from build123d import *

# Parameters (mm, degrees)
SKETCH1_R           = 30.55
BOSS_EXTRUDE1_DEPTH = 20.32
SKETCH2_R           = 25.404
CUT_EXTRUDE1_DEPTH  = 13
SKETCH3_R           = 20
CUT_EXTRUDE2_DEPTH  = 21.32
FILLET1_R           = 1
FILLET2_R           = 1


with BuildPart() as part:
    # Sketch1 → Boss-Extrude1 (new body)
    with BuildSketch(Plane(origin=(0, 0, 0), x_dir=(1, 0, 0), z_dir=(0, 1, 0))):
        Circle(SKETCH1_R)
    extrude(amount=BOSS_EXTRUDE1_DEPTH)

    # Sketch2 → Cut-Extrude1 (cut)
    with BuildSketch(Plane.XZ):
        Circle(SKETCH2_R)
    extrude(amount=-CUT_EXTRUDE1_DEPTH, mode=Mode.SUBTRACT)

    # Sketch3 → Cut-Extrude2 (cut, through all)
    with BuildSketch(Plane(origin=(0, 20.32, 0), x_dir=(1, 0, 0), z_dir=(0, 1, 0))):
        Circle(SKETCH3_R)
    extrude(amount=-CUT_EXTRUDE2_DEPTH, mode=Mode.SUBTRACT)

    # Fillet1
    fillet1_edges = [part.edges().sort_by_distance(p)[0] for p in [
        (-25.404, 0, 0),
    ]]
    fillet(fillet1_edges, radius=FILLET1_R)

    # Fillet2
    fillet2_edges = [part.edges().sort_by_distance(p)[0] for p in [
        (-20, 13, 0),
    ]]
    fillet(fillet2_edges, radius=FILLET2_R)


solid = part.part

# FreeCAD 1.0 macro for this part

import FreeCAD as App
import Part
import Sketcher
from FreeCAD import Vector


def edges_at(feature, points):
    """Names of the edges that pass closest to the given points."""
    edges = feature.Shape.Edges
    near = lambda p: min(range(len(edges)), key=lambda i: edges[i].distToShape(Part.Vertex(*p))[0])
    return sorted({f"Edge{near(p) + 1}" for p in points})

doc = App.newDocument("Part")
params = doc.addObject("Spreadsheet::Sheet", "Params")
for row, (alias, value) in enumerate([
    ("sketch1_diameter", "61.1 mm"),
    ("pad1_length", "20.32 mm"),
    ("pocket1_length", "13 mm"),
    ("sketch3_diameter", "40 mm"),
    ("fillet_radius", "1 mm"),
    ("fillet2_radius", "1 mm"),
], start=1):
    params.set(f"A{row}", alias)
    params.set(f"B{row}", "=" + value)
    params.setAlias(f"B{row}", alias)

body = doc.addObject("PartDesign::Body", "Body")

# Sketch on XZ plane
sketch1 = doc.addObject("Sketcher::SketchObject", "Sketch")
body.addObject(sketch1)
sketch1.AttachmentSupport = (doc.XZ_Plane, [""])
sketch1.MapMode = "FlatFace"
sketch1.addGeometry(Part.Circle(Vector(0, 0, 0), Vector(0, 0, 1), 30.55), False)
sketch1.addConstraint([
    Sketcher.Constraint("Coincident", 0, 3, -1, 1),
    Sketcher.Constraint("Diameter", 0, 61.1),
])
sketch1.setExpression("Constraints[1]", "Params.sketch1_diameter")
pad1 = doc.addObject("PartDesign::Pad", "Pad")
body.addObject(pad1)
pad1.Profile = sketch1
pad1.setExpression("Length", "Params.pad1_length")
pad1.Reversed = True

# Sketch on XZ plane
sketch2 = doc.addObject("Sketcher::SketchObject", "Sketch001")
body.addObject(sketch2)
sketch2.AttachmentSupport = (doc.XZ_Plane, [""])
sketch2.MapMode = "FlatFace"
sketch2.addGeometry(Part.Circle(Vector(0, 0, 0), Vector(0, 0, 1), 25.404), False)
sketch2.addConstraint([
    Sketcher.Constraint("Coincident", 0, 3, -1, 1),
    Sketcher.Constraint("Diameter", 0, 50.808),
])
pocket1 = doc.addObject("PartDesign::Pocket", "Pocket")
body.addObject(pocket1)
pocket1.Profile = sketch2
pocket1.setExpression("Length", "Params.pocket1_length")

# Sketch on XZ plane
sketch3 = doc.addObject("Sketcher::SketchObject", "Sketch002")
body.addObject(sketch3)
sketch3.AttachmentSupport = (doc.XZ_Plane, [""])
sketch3.MapMode = "FlatFace"
sketch3.AttachmentOffset = App.Placement(Vector(0, 0, -20.32), App.Rotation())
sketch3.addGeometry(Part.Circle(Vector(0, 0, 0), Vector(0, 0, 1), 20), False)
sketch3.addConstraint([
    Sketcher.Constraint("Coincident", 0, 3, -1, 1),
    Sketcher.Constraint("Diameter", 0, 40.0),
])
sketch3.setExpression("Constraints[1]", "Params.sketch3_diameter")
pocket2 = doc.addObject("PartDesign::Pocket", "Pocket001")
body.addObject(pocket2)
pocket2.Profile = sketch3
pocket2.Type = "ThroughAll"
pocket2.Reversed = True
doc.recompute()

fillet = doc.addObject("PartDesign::Fillet", "Fillet")
body.addObject(fillet)
fillet.Base = (pocket2, edges_at(pocket2, [(-25.404, 0, 0)]))
fillet.setExpression("Radius", "Params.fillet_radius")
doc.recompute()

fillet2 = doc.addObject("PartDesign::Fillet", "Fillet001")
body.addObject(fillet2)
fillet2.Base = (fillet, edges_at(fillet, [(-20, 13, 0)]))
fillet2.setExpression("Radius", "Params.fillet2_radius")

doc.recompute()
